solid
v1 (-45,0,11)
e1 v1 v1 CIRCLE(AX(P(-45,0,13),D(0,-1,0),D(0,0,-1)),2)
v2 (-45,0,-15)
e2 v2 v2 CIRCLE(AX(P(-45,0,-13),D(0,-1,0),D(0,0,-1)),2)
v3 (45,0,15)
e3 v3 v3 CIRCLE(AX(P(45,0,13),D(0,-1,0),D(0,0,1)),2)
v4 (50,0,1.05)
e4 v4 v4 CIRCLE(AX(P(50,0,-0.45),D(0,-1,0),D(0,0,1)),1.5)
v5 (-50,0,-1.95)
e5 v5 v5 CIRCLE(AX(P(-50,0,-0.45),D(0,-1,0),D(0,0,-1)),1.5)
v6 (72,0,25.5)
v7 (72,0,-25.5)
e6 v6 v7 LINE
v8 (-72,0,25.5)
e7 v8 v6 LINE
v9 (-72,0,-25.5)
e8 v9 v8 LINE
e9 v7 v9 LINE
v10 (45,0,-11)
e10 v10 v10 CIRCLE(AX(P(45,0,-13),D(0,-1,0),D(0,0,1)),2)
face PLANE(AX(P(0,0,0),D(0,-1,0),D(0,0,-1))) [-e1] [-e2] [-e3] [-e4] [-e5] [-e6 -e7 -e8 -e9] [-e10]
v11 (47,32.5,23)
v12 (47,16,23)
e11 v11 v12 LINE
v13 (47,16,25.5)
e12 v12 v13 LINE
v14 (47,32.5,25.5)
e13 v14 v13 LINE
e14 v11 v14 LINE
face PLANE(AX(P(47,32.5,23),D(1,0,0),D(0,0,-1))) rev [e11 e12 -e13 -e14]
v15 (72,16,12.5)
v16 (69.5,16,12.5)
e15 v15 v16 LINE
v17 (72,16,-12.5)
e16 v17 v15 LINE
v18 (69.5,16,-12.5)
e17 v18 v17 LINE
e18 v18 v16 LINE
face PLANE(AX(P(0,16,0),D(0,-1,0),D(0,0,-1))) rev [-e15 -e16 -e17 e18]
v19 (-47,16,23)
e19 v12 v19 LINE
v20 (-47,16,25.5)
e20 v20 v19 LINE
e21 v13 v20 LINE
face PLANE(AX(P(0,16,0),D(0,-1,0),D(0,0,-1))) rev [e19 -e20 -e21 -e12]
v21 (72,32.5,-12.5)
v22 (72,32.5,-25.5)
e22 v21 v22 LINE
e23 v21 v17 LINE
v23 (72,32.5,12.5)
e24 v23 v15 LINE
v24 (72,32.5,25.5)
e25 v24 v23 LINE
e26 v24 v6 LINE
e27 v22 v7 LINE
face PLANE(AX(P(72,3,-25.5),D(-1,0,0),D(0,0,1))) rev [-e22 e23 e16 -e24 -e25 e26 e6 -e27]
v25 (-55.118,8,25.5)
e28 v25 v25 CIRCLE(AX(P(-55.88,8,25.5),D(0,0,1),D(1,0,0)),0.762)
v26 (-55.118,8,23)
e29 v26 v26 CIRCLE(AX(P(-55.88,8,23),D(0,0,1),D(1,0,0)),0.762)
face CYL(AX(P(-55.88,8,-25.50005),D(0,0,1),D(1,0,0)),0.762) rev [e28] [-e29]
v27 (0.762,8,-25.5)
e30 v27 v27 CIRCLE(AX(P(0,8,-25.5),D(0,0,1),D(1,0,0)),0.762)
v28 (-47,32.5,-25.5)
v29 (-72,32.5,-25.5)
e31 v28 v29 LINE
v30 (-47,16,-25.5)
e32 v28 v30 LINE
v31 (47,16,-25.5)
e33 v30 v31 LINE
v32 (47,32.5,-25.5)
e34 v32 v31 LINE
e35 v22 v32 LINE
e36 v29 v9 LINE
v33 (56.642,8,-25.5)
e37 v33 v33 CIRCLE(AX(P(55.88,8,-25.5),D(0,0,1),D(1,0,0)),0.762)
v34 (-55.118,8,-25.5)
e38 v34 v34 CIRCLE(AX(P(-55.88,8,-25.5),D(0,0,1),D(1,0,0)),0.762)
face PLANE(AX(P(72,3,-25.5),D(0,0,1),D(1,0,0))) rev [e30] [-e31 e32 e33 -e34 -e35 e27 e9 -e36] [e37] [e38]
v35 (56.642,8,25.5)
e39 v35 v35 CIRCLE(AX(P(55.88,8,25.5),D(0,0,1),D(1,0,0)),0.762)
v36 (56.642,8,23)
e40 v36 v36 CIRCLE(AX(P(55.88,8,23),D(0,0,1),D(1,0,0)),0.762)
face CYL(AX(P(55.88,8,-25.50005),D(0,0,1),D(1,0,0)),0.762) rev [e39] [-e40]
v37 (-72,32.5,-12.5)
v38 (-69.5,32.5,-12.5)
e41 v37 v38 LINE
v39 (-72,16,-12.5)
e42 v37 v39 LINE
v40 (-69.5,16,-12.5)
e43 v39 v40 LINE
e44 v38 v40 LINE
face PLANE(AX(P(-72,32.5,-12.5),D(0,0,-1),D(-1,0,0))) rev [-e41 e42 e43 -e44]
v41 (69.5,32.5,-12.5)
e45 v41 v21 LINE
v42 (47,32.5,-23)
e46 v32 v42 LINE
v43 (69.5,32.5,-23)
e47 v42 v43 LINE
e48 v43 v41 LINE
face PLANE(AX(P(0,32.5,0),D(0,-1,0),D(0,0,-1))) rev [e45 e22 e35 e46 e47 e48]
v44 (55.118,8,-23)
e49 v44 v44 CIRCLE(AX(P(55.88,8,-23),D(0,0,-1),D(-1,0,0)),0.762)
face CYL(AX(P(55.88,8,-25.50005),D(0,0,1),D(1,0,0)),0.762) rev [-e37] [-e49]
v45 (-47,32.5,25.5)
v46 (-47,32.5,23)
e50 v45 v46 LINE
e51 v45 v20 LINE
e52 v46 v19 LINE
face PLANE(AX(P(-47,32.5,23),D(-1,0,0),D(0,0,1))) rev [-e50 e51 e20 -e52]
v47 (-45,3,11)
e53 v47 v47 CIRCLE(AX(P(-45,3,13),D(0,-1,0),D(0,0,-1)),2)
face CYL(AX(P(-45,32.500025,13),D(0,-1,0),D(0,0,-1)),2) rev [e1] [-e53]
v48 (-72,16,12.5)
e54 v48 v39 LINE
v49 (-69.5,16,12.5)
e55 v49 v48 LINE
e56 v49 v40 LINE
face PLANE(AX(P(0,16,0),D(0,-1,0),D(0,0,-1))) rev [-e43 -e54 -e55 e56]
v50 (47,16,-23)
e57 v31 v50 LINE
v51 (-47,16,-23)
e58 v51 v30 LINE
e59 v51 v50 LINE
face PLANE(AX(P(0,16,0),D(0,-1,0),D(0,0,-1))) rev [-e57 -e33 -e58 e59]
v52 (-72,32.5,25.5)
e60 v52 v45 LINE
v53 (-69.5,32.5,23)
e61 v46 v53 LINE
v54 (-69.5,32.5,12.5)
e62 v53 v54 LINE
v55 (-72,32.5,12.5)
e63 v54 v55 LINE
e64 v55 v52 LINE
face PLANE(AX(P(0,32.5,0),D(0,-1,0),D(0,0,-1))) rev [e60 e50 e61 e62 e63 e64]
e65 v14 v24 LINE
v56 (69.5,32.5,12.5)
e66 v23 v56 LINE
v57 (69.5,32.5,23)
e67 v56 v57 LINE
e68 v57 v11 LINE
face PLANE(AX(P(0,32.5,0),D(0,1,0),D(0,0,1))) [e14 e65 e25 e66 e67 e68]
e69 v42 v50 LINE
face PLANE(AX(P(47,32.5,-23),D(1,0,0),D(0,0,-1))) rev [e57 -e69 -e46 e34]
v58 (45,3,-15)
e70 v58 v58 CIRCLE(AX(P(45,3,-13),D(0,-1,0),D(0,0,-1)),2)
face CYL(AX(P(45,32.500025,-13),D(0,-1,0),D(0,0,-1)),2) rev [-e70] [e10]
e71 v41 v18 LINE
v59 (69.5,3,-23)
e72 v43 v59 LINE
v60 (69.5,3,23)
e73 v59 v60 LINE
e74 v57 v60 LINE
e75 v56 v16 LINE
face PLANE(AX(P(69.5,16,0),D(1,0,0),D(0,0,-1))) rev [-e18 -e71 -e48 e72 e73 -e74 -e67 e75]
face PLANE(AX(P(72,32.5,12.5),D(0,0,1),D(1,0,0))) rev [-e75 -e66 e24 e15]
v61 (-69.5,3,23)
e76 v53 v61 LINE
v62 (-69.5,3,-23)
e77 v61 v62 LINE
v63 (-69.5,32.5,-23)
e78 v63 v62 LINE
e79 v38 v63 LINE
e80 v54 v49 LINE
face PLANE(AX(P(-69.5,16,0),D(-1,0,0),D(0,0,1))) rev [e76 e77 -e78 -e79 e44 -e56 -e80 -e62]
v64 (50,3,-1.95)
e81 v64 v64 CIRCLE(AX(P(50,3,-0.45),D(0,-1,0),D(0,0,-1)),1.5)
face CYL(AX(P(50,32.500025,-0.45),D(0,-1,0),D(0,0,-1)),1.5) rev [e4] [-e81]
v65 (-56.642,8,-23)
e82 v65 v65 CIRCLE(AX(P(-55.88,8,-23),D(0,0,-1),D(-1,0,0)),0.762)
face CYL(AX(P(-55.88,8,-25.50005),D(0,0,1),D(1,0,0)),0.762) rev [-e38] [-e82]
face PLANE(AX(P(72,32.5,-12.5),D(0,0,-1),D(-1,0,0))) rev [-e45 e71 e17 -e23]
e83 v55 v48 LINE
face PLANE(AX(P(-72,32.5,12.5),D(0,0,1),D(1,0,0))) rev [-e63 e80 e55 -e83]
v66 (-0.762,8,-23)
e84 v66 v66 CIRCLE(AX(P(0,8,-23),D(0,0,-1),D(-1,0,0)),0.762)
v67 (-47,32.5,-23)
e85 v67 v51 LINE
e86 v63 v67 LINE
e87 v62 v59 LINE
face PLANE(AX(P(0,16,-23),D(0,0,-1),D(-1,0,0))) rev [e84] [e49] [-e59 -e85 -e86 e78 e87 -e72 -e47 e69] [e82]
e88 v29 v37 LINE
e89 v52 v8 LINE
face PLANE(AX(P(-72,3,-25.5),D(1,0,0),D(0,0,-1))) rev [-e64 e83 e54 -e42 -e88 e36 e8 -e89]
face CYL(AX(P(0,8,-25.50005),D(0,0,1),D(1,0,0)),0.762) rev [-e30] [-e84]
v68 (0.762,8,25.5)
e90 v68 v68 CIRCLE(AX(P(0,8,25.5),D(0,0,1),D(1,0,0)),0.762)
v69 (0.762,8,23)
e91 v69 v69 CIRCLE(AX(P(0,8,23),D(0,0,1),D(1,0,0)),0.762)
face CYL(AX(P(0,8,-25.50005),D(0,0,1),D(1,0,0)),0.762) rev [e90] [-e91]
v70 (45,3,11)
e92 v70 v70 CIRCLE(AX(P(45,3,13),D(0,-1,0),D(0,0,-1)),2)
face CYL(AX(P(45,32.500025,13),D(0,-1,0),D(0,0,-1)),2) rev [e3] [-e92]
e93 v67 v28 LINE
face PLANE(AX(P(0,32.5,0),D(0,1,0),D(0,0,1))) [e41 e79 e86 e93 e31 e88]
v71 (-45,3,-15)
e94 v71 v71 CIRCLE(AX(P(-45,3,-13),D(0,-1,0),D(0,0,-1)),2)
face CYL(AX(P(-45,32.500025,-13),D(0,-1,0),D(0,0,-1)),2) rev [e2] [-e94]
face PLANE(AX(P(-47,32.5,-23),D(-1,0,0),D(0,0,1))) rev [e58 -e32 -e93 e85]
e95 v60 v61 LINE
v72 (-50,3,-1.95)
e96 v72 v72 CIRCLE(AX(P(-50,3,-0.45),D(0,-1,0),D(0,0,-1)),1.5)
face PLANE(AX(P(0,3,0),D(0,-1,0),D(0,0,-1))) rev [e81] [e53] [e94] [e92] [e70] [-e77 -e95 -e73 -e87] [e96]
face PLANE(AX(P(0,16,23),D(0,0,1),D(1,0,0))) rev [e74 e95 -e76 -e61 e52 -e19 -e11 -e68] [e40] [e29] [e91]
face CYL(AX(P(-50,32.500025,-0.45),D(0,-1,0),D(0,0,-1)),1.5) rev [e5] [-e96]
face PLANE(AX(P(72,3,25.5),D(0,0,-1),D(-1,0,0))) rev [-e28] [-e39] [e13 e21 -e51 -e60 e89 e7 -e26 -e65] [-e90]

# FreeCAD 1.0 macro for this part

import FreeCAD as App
import Part
import Sketcher
Q = App.Units.Quantity


def add_polygon(sketch, points):
    """Adds a closed chain of lines whose ends are joined by coincident constraints."""
    first, n = sketch.GeometryCount, len(points)
    for a, b in zip(points, points[1:] + points[:1]):
        sketch.addGeometry(Part.LineSegment(App.Vector(*a, 0), App.Vector(*b, 0)), False)
    for i in range(n):
        sketch.addConstraint(Sketcher.Constraint("Coincident", first + i, 2, first + (i + 1) % n, 1))

doc = App.newDocument("Part")
body = doc.addObject("PartDesign::Body", "Body")

# Sketch on XZ plane
sketch1 = doc.addObject("Sketcher::SketchObject", "Sketch")
body.addObject(sketch1)
sketch1.AttachmentSupport = (doc.XZ_Plane, [""])
sketch1.MapMode = "FlatFace"
add_polygon(sketch1, [(-72, -26), (-72, 26), (72, 26), (72, -26)])  # lines 0-3
sketch1.addConstraint([
    Sketcher.Constraint("Vertical", 0),
    Sketcher.Constraint("Horizontal", 1),
    Sketcher.Constraint("Vertical", 2),
    Sketcher.Constraint("Horizontal", 3),
    Sketcher.Constraint("Symmetric", 0, 2, 2, 2, -1, 1),
    Sketcher.Constraint("DistanceX", 1, 1, 1, 2, Q("144 mm")),
    Sketcher.Constraint("DistanceY", 0, 1, 0, 2, Q("51 mm")),
])
pad1 = doc.addObject("PartDesign::Pad", "Pad")
body.addObject(pad1)
pad1.Profile = sketch1
pad1.Length = 3
pad1.Reversed = True

# Sketch on XZ plane
sketch2 = doc.addObject("Sketcher::SketchObject", "Sketch001")
body.addObject(sketch2)
sketch2.AttachmentSupport = (doc.XZ_Plane, [""])
sketch2.MapMode = "FlatFace"
add_polygon(sketch2, [(-72, -26), (-72, 26), (72, 26), (72, -26)])  # lines 0-3
add_polygon(sketch2, [(70, 23), (-70, 23), (-70, -23), (70, -23)])  # lines 4-7
sketch2.addConstraint([
    Sketcher.Constraint("Vertical", 0),
    Sketcher.Constraint("Horizontal", 1),
    Sketcher.Constraint("Vertical", 2),
    Sketcher.Constraint("Horizontal", 3),
    Sketcher.Constraint("Horizontal", 4),
    Sketcher.Constraint("Vertical", 5),
    Sketcher.Constraint("Horizontal", 6),
    Sketcher.Constraint("Vertical", 7),
    Sketcher.Constraint("Symmetric", 0, 2, 2, 2, -1, 1),
    Sketcher.Constraint("Symmetric", 4, 2, 6, 2, -1, 1),
    Sketcher.Constraint("DistanceX", 1, 1, 1, 2, Q("144 mm")),
    Sketcher.Constraint("DistanceX", 4, 2, 4, 1, Q("139 mm")),
    Sketcher.Constraint("DistanceY", 0, 1, 0, 2, Q("51 mm")),
    Sketcher.Constraint("DistanceY", 5, 2, 5, 1, Q("46 mm")),
])
pad2 = doc.addObject("PartDesign::Pad", "Pad001")
body.addObject(pad2)
pad2.Profile = sketch2
pad2.Length = 16
pad2.Reversed = True

# Sketch on XZ plane
sketch3 = doc.addObject("Sketcher::SketchObject", "Sketch002")
body.addObject(sketch3)
sketch3.AttachmentSupport = (doc.XZ_Plane, [""])
sketch3.MapMode = "FlatFace"
sketch3.AttachmentOffset = App.Placement(App.Vector(0, 0, -16), App.Rotation())
add_polygon(sketch3, [(-72, -25.5), (-72, -12.5), (-69.5, -12.5), (-69.5, -23), (-47, -23), (-47, -25.5)])  # lines 0-5
add_polygon(sketch3, [(72, -25.5), (47, -25.5), (47, -23), (69.5, -23), (69.5, -12.5), (72, -12.5)])  # lines 6-11
add_polygon(sketch3, [(72, 25.5), (72, 12.5), (69.5, 12.5), (69.5, 23), (47, 23), (47, 25.5)])  # lines 12-17
add_polygon(sketch3, [(-72, 25.5), (-47, 25.5), (-47, 23), (-69.5, 23), (-69.5, 12.5), (-72, 12.5)])  # lines 18-23
sketch3.addConstraint([
    Sketcher.Constraint("Vertical", 0),
    Sketcher.Constraint("Horizontal", 1),
    Sketcher.Constraint("Vertical", 2),
    Sketcher.Constraint("Horizontal", 3),
    Sketcher.Constraint("Vertical", 4),
    Sketcher.Constraint("Horizontal", 5),
    Sketcher.Constraint("Horizontal", 6),
    Sketcher.Constraint("Vertical", 7),
    Sketcher.Constraint("Horizontal", 8),
    Sketcher.Constraint("Vertical", 9),
    Sketcher.Constraint("Horizontal", 10),
    Sketcher.Constraint("Vertical", 11),
    Sketcher.Constraint("Vertical", 12),
    Sketcher.Constraint("Horizontal", 13),
    Sketcher.Constraint("Vertical", 14),
    Sketcher.Constraint("Horizontal", 15),
    Sketcher.Constraint("Vertical", 16),
    Sketcher.Constraint("Horizontal", 17),
    Sketcher.Constraint("Horizontal", 18),
    Sketcher.Constraint("Vertical", 19),
    Sketcher.Constraint("Horizontal", 20),
    Sketcher.Constraint("Vertical", 21),
    Sketcher.Constraint("Horizontal", 22),
    Sketcher.Constraint("Vertical", 23),
    Sketcher.Constraint("Symmetric", 0, 2, 12, 2, -1, 1),
    Sketcher.Constraint("Symmetric", 2, 2, 14, 2, -1, 1),
    Sketcher.Constraint("Symmetric", 4, 2, 16, 2, -1, 1),
    Sketcher.Constraint("Symmetric", 6, 2, 18, 2, -1, 1),
    Sketcher.Constraint("Symmetric", 8, 2, 20, 2, -1, 1),
    Sketcher.Constraint("Symmetric", 10, 2, 22, 2, -1, 1),
    Sketcher.Constraint("Symmetric", 4, 2, 6, 2, -2),
    Sketcher.Constraint("Symmetric", 2, 2, 8, 2, -2),
    Sketcher.Constraint("Symmetric", 0, 2, 10, 2, -2),
    Sketcher.Constraint("Equal", 22, 4),
    Sketcher.Constraint("DistanceX", 5, 2, 5, 1, Q("25 mm")),
    Sketcher.Constraint("DistanceY", 0, 1, 0, 2, Q("13 mm")),
    Sketcher.Constraint("DistanceX", 1, 1, 1, 2, Q("2.5 mm")),
    Sketcher.Constraint("DistanceX", 0, 2, -1, 1, Q("72 mm")),
    Sketcher.Constraint("DistanceY", 2, 2, -1, 1, Q("23 mm")),
])
pad3 = doc.addObject("PartDesign::Pad", "Pad002")
body.addObject(pad3)
pad3.Profile = sketch3
pad3.Length = 16.5
pad3.Reversed = True

# Sketch on XZ plane
sketch4 = doc.addObject("Sketcher::SketchObject", "Sketch003")
body.addObject(sketch4)
sketch4.AttachmentSupport = (doc.XZ_Plane, [""])
sketch4.MapMode = "FlatFace"
sketch4.addGeometry([
    Part.Circle(App.Vector(-45, -13, 0), App.Vector(0, 0, 1), 2),  # 0
    Part.Circle(App.Vector(-45, 13, 0), App.Vector(0, 0, 1), 2),  # 1
    Part.Circle(App.Vector(45, 13, 0), App.Vector(0, 0, 1), 2),  # 2
    Part.Circle(App.Vector(45, -13, 0), App.Vector(0, 0, 1), 2),  # 3
    Part.Circle(App.Vector(-50, -0.5, 0), App.Vector(0, 0, 1), 1.5),  # 4
    Part.Circle(App.Vector(50, -0.5, 0), App.Vector(0, 0, 1), 1.5),  # 5
], False)
sketch4.addConstraint([
    Sketcher.Constraint("Equal", 0, 1),
    Sketcher.Constraint("Equal", 1, 2),
    Sketcher.Constraint("Equal", 2, 3),
    Sketcher.Constraint("Equal", 4, 5),
    Sketcher.Constraint("Symmetric", 0, 3, 2, 3, -1, 1),
    Sketcher.Constraint("Symmetric", 1, 3, 3, 3, -1, 1),
    Sketcher.Constraint("Symmetric", 1, 3, 2, 3, -2),
    Sketcher.Constraint("Symmetric", 4, 3, 5, 3, -2),
    Sketcher.Constraint("Diameter", 0, Q("4 mm")),
    Sketcher.Constraint("Diameter", 4, Q("3 mm")),
    Sketcher.Constraint("DistanceX", 0, 3, -1, 1, Q("45 mm")),
    Sketcher.Constraint("DistanceY", 0, 3, -1, 1, Q("13 mm")),
    Sketcher.Constraint("DistanceX", 4, 3, -1, 1, Q("50 mm")),
    Sketcher.Constraint("DistanceY", 4, 3, -1, 1, Q("0.45 mm")),
])
pocket1 = doc.addObject("PartDesign::Pocket", "Pocket")
body.addObject(pocket1)
pocket1.Profile = sketch4
pocket1.Type = "ThroughAll"

# Sketch on XY plane
sketch5 = doc.addObject("Sketcher::SketchObject", "Sketch004")
body.addObject(sketch5)
sketch5.AttachmentSupport = (doc.XY_Plane, [""])
sketch5.MapMode = "FlatFace"
sketch5.AttachmentOffset = App.Placement(App.Vector(0, 0, 25.5), App.Rotation())
sketch5.addGeometry([
    Part.Circle(App.Vector(-55.9, 8, 0), App.Vector(0, 0, 1), 0.8),
    Part.Circle(App.Vector(55.9, 8, 0), App.Vector(0, 0, 1), 0.8),
    Part.Circle(App.Vector(0, 8, 0), App.Vector(0, 0, 1), 0.8),
], False)
sketch5.addConstraint([
    Sketcher.Constraint("Equal", 0, 1),
    Sketcher.Constraint("Equal", 1, 2),
    Sketcher.Constraint("Symmetric", 0, 3, 1, 3, -2),
    Sketcher.Constraint("PointOnObject", 2, 3, -2),
    Sketcher.Constraint("Horizontal", 1, 3, 2, 3),
    Sketcher.Constraint("Diameter", 0, Q("1.524 mm")),
    Sketcher.Constraint("DistanceY", -1, 1, 0, 3, Q("8 mm")),
    Sketcher.Constraint("DistanceX", 0, 3, -1, 1, Q("55.88 mm")),
])
pocket2 = doc.addObject("PartDesign::Pocket", "Pocket001")
body.addObject(pocket2)
pocket2.Profile = sketch5
pocket2.Type = "ThroughAll"

doc.recompute()
